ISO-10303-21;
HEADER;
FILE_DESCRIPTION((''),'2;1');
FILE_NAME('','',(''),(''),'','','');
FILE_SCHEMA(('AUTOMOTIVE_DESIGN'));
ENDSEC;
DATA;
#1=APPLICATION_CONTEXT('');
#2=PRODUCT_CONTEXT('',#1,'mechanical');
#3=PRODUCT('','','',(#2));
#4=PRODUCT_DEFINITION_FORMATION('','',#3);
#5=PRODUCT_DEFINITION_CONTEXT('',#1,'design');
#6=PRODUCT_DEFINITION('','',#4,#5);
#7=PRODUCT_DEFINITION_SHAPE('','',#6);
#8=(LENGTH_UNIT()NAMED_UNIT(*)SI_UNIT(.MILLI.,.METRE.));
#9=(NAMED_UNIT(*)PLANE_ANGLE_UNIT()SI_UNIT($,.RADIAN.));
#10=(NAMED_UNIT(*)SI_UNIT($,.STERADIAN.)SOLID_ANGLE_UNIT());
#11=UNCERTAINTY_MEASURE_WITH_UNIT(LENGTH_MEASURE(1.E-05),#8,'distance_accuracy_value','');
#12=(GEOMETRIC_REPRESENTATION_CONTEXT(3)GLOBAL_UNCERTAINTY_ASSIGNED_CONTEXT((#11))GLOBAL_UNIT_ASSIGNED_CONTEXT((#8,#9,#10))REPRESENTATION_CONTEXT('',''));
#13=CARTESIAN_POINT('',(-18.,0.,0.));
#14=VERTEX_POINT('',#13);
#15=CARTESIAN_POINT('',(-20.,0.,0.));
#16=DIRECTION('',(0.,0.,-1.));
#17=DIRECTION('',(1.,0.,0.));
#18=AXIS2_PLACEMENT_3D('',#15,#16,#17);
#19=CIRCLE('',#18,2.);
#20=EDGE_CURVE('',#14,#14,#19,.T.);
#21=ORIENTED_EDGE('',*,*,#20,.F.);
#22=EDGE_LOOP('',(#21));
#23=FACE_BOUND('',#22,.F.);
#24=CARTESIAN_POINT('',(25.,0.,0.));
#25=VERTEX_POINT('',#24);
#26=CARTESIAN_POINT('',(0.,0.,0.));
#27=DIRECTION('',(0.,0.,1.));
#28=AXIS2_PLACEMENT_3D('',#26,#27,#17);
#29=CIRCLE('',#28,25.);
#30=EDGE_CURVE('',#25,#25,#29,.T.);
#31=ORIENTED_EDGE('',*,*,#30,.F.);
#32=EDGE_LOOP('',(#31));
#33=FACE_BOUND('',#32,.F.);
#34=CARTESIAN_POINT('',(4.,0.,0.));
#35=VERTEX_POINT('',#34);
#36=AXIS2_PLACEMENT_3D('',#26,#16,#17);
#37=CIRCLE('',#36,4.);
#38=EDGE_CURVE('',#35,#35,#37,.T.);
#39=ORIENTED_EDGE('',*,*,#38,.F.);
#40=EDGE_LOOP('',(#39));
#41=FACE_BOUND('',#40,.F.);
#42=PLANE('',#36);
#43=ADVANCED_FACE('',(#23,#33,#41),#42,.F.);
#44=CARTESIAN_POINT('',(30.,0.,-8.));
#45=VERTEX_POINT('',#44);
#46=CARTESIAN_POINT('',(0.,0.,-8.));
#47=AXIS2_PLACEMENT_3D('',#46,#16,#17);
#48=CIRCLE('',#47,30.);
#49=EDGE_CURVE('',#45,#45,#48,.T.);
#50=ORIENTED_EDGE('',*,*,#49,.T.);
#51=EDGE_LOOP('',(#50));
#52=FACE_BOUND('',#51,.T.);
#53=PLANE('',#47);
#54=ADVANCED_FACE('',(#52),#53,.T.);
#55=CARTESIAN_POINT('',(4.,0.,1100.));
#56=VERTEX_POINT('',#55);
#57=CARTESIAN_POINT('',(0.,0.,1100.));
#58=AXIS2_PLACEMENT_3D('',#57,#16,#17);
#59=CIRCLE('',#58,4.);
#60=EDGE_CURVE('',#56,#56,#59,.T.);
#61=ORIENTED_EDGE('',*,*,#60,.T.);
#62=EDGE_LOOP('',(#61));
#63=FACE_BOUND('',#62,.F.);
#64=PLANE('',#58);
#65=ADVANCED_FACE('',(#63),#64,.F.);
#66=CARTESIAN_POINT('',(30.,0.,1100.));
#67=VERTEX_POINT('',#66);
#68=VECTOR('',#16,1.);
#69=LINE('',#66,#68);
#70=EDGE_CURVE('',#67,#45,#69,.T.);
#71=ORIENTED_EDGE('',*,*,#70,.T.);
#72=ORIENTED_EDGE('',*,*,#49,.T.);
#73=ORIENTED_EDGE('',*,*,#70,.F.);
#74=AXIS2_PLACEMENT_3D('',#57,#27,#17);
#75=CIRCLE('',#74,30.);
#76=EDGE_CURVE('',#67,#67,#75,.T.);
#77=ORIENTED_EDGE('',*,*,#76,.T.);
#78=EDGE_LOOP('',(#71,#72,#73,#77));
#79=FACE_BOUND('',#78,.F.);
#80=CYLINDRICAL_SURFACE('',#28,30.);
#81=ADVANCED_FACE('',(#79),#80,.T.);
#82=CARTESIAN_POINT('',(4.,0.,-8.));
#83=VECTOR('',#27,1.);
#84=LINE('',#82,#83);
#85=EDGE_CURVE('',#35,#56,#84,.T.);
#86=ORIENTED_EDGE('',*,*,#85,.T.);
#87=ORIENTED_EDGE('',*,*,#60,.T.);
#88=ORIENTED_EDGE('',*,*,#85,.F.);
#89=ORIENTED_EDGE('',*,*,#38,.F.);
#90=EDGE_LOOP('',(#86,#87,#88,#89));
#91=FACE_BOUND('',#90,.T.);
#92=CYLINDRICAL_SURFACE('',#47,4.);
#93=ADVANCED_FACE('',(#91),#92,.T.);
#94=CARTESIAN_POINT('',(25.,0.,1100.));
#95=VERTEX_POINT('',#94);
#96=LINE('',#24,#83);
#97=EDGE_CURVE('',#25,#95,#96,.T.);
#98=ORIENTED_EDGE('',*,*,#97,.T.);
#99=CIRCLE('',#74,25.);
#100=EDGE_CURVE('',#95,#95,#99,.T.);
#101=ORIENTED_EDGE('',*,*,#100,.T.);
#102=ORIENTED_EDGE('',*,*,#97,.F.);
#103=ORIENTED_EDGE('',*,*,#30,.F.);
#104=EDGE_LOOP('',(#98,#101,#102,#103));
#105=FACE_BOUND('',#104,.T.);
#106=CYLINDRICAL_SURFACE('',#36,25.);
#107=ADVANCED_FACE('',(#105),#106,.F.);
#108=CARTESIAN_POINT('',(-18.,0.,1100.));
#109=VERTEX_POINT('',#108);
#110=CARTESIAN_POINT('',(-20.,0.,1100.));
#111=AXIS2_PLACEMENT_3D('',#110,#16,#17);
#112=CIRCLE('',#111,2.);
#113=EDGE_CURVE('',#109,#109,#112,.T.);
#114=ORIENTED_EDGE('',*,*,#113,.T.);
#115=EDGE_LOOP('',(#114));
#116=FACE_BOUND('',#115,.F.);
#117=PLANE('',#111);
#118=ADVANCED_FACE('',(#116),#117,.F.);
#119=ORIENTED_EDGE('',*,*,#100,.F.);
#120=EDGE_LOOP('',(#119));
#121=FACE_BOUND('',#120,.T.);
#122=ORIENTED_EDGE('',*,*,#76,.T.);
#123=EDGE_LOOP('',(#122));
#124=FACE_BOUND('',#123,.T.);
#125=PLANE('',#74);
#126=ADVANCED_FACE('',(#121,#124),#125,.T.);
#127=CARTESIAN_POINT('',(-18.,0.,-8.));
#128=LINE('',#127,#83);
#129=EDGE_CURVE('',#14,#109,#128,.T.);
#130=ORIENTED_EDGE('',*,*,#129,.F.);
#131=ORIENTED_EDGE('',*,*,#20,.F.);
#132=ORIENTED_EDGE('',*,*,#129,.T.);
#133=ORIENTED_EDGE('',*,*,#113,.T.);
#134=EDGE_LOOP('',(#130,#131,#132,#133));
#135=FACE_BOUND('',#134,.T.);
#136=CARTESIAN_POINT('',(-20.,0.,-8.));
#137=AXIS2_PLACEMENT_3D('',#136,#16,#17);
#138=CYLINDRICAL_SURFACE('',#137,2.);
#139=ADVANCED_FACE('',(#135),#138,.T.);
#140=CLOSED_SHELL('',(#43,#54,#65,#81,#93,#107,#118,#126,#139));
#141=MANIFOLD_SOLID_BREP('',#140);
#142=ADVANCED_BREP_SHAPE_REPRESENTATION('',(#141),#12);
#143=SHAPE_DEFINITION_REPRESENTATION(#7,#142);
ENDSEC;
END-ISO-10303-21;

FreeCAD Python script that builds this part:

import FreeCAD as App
import Part
import Sketcher
Q = App.Units.Quantity

doc = App.newDocument("Part")
body = doc.addObject("PartDesign::Body", "Body")

sketch1 = body.newObject("Sketcher::SketchObject", "Sketch")
sketch1.AttachmentSupport = (doc.getObject("XY_Plane"), [""])
sketch1.MapMode = "FlatFace"
sketch1.addGeometry(Part.Circle(App.Vector(0, 0, 0), App.Vector(0, 0, 1), 30), False)
sketch1.addGeometry(Part.Circle(App.Vector(0, 0, 0), App.Vector(0, 0, 1), 25), False)
sketch1.addConstraint(Sketcher.Constraint("Coincident", 0, 3, -1, 1))
sketch1.addConstraint(Sketcher.Constraint("Coincident", 1, 3, -1, 1))
sketch1.addConstraint(Sketcher.Constraint("Diameter", 0, Q("60 mm")))
sketch1.addConstraint(Sketcher.Constraint("Diameter", 1, Q("50 mm")))
pad1 = body.newObject("PartDesign::Pad", "Pad")
pad1.Profile = sketch1
pad1.Length = 1100

sketch2 = body.newObject("Sketcher::SketchObject", "Sketch001")
sketch2.AttachmentSupport = (doc.getObject("XY_Plane"), [""])
sketch2.MapMode = "FlatFace"
sketch2.addGeometry(Part.Circle(App.Vector(0, 0, 0), App.Vector(0, 0, 1), 30), False)
sketch2.addConstraint(Sketcher.Constraint("Coincident", 0, 3, -1, 1))
sketch2.addConstraint(Sketcher.Constraint("Diameter", 0, Q("60 mm")))
pad2 = body.newObject("PartDesign::Pad", "Pad001")
pad2.Profile = sketch2
pad2.Length = 8
pad2.Reversed = True

sketch3 = body.newObject("Sketcher::SketchObject", "Sketch002")
sketch3.AttachmentSupport = (doc.getObject("XY_Plane"), [""])
sketch3.MapMode = "FlatFace"
sketch3.AttachmentOffset = App.Placement(App.Vector(0, 0, -8), App.Rotation())
sketch3.addGeometry(Part.Circle(App.Vector(0, 0, 0), App.Vector(0, 0, 1), 4), False)
sketch3.addGeometry(Part.Circle(App.Vector(-20, 0, 0), App.Vector(0, 0, 1), 2), False)
sketch3.addConstraint(Sketcher.Constraint("Coincident", 0, 3, -1, 1))
sketch3.addConstraint(Sketcher.Constraint("PointOnObject", 1, 3, -1))
sketch3.addConstraint(Sketcher.Constraint("Diameter", 0, Q("8 mm")))
sketch3.addConstraint(Sketcher.Constraint("Diameter", 1, Q("4 mm")))
sketch3.addConstraint(Sketcher.Constraint("DistanceX", 1, 3, -1, 1, Q("20 mm")))
pad3 = body.newObject("PartDesign::Pad", "Pad002")
pad3.Profile = sketch3
pad3.Length = 1108

doc.recompute()
